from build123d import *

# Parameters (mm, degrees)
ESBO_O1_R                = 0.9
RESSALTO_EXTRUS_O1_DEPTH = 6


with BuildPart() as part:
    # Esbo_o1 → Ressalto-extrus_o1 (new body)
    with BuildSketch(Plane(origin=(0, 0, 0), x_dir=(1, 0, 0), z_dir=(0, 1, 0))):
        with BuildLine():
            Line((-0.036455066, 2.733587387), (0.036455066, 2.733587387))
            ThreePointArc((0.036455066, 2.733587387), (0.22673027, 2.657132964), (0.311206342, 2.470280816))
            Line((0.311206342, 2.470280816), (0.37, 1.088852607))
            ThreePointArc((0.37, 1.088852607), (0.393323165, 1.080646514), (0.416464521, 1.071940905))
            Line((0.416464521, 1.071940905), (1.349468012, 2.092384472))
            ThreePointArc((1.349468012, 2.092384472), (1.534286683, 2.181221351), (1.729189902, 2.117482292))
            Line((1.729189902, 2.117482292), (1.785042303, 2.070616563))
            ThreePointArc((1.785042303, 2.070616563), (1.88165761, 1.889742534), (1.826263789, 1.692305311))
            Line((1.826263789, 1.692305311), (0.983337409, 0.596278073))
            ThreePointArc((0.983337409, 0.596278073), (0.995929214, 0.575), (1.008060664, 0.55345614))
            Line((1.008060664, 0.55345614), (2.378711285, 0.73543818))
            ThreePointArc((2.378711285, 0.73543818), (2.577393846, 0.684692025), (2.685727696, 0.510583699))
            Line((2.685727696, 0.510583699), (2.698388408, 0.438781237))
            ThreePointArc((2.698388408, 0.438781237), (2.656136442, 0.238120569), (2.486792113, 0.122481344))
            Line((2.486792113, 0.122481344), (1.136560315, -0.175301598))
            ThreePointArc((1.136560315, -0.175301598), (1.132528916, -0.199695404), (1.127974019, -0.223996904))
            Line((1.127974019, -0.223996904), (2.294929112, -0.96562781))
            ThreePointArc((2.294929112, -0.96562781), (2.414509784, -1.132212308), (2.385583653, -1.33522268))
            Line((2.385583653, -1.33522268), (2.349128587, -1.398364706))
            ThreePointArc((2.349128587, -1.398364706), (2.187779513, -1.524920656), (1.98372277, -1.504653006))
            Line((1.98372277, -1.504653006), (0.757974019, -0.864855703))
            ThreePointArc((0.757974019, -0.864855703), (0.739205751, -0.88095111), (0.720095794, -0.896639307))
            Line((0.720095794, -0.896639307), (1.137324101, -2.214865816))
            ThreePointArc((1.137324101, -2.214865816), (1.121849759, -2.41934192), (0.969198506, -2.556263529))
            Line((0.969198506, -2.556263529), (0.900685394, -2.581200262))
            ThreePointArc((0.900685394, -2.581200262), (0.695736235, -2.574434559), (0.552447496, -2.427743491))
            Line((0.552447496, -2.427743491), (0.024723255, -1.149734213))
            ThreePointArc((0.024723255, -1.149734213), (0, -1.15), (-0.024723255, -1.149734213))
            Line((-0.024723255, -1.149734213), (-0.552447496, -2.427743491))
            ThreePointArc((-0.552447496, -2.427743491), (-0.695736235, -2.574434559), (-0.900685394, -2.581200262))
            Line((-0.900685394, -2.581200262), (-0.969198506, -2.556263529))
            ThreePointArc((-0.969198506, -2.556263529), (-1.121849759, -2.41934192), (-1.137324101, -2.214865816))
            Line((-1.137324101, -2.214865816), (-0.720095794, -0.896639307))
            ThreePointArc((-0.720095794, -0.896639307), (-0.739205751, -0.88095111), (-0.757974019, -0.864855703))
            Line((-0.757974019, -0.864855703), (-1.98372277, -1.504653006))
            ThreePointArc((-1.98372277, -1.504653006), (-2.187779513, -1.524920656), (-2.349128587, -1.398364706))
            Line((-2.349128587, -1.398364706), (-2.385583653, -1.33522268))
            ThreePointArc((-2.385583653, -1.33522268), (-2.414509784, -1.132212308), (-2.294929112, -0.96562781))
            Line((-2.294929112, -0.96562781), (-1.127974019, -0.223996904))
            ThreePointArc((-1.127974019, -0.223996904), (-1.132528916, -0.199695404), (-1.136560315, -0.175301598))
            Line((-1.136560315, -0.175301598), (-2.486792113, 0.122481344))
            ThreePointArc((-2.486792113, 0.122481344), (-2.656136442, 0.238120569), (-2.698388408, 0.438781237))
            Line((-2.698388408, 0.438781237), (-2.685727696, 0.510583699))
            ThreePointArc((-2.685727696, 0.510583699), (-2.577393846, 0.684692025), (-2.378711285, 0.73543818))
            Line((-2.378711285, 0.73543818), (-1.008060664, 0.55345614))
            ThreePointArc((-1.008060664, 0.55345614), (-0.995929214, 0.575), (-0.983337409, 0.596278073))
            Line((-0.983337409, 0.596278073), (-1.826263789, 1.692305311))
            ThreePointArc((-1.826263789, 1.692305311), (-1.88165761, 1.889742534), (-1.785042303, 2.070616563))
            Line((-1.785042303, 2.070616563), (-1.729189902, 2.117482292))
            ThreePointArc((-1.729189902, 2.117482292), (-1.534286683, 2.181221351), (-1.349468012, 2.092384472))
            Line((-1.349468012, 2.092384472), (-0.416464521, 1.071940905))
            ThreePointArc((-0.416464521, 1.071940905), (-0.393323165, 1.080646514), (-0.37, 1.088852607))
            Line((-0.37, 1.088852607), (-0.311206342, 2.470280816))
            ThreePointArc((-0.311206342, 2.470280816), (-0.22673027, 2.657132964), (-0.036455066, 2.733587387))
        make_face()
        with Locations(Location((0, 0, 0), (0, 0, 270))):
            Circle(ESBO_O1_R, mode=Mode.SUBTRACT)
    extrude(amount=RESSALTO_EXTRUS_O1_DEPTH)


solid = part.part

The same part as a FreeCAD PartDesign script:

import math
import FreeCAD as App
import Part
import Sketcher
Q = App.Units.Quantity

doc = App.newDocument("Part")
params = doc.addObject("Spreadsheet::Sheet", "Params")
for row, (alias, value) in enumerate([
    ("sketch1_diameter", "1.8 mm"),
    ("sketch1_radius", "1.15 mm"),
    ("pad1_length", "6 mm"),
], start=1):
    params.set(f"A{row}", alias)
    params.set(f"B{row}", "=" + value)
    params.setAlias(f"B{row}", alias)

body = doc.addObject("PartDesign::Body", "Body")

# Sketch on XZ plane
sketch1 = body.newObject("Sketcher::SketchObject", "Sketch")
sketch1.AttachmentSupport = (doc.getObject("XZ_Plane"), [""])
sketch1.MapMode = "FlatFace"
sketch1.addGeometry(Part.LineSegment(App.Vector(0.036, -2.734, 0), App.Vector(-0.036, -2.734, 0)), False)
sketch1.addGeometry(Part.ArcOfCircle(Part.Circle(App.Vector(-0.036, -2.459, 0), App.Vector(0, 0, 1), 0.275), math.radians(-178), math.radians(-90)), False)
sketch1.addGeometry(Part.LineSegment(App.Vector(-0.311, -2.47, 0), App.Vector(-0.37, -1.089, 0)), False)
sketch1.addGeometry(Part.ArcOfCircle(Part.Circle(App.Vector(0, 0, 0), App.Vector(0, 0, 1), 1.15), math.radians(-111.23), math.radians(-108.77)), False)
sketch1.addGeometry(Part.LineSegment(App.Vector(-0.416, -1.072, 0), App.Vector(-1.349, -2.092, 0)), False)
sketch1.addGeometry(Part.ArcOfCircle(Part.Circle(App.Vector(-1.552, -1.907, 0), App.Vector(0, 0, 1), 0.275), math.radians(-130), math.radians(-42)), False)
sketch1.addGeometry(Part.LineSegment(App.Vector(-1.729, -2.117, 0), App.Vector(-1.785, -2.071, 0)), False)
sketch1.addGeometry(Part.ArcOfCircle(Part.Circle(App.Vector(-1.608, -1.86, 0), App.Vector(0, 0, 1), 0.275), math.radians(142), math.radians(230)), False)
sketch1.addGeometry(Part.LineSegment(App.Vector(-1.826, -1.692, 0), App.Vector(-0.983, -0.596, 0)), False)
sketch1.addGeometry(Part.ArcOfCircle(Part.Circle(App.Vector(0, 0, 0), App.Vector(0, 0, 1), 1.15), math.radians(-151.23), math.radians(-148.77)), False)
sketch1.addGeometry(Part.LineSegment(App.Vector(-1.008, -0.553, 0), App.Vector(-2.379, -0.735, 0)), False)
sketch1.addGeometry(Part.ArcOfCircle(Part.Circle(App.Vector(-2.415, -0.463, 0), App.Vector(0, 0, 1), 0.275), math.radians(-170), math.radians(-82)), False)
sketch1.addGeometry(Part.LineSegment(App.Vector(-2.686, -0.511, 0), App.Vector(-2.698, -0.439, 0)), False)
sketch1.addGeometry(Part.ArcOfCircle(Part.Circle(App.Vector(-2.428, -0.391, 0), App.Vector(0, 0, 1), 0.275), math.radians(102), math.radians(190)), False)
sketch1.addGeometry(Part.LineSegment(App.Vector(-2.487, -0.122, 0), App.Vector(-1.137, 0.175, 0)), False)
sketch1.addGeometry(Part.ArcOfCircle(Part.Circle(App.Vector(0, 0, 0), App.Vector(0, 0, 1), 1.15), math.radians(168.77), math.radians(171.23)), False)
sketch1.addGeometry(Part.LineSegment(App.Vector(-1.128, 0.224, 0), App.Vector(-2.295, 0.966, 0)), False)
sketch1.addGeometry(Part.ArcOfCircle(Part.Circle(App.Vector(-2.147, 1.198, 0), App.Vector(0, 0, 1), 0.275), math.radians(150), math.radians(238)), False)
sketch1.addGeometry(Part.LineSegment(App.Vector(-2.386, 1.335, 0), App.Vector(-2.349, 1.398, 0)), False)
sketch1.addGeometry(Part.ArcOfCircle(Part.Circle(App.Vector(-2.111, 1.261, 0), App.Vector(0, 0, 1), 0.275), math.radians(62), math.radians(150)), False)
sketch1.addGeometry(Part.LineSegment(App.Vector(-1.984, 1.505, 0), App.Vector(-0.758, 0.865, 0)), False)
sketch1.addGeometry(Part.ArcOfCircle(Part.Circle(App.Vector(0, 0, 0), App.Vector(0, 0, 1), 1.15), math.radians(128.77), math.radians(131.23)), False)
sketch1.addGeometry(Part.LineSegment(App.Vector(-0.72, 0.897, 0), App.Vector(-1.137, 2.215, 0)), False)
sketch1.addGeometry(Part.ArcOfCircle(Part.Circle(App.Vector(-0.875, 2.298, 0), App.Vector(0, 0, 1), 0.275), math.radians(110), math.radians(198)), False)
sketch1.addGeometry(Part.LineSegment(App.Vector(-0.969, 2.556, 0), App.Vector(-0.901, 2.581, 0)), False)
sketch1.addGeometry(Part.ArcOfCircle(Part.Circle(App.Vector(-0.807, 2.323, 0), App.Vector(0, 0, 1), 0.275), math.radians(22), math.radians(110)), False)
sketch1.addGeometry(Part.LineSegment(App.Vector(-0.552, 2.428, 0), App.Vector(-0.025, 1.15, 0)), False)
sketch1.addGeometry(Part.ArcOfCircle(Part.Circle(App.Vector(0, 0, 0), App.Vector(0, 0, 1), 1.15), math.radians(88.77), math.radians(91.23)), False)
sketch1.addGeometry(Part.LineSegment(App.Vector(0.025, 1.15, 0), App.Vector(0.552, 2.428, 0)), False)
sketch1.addGeometry(Part.ArcOfCircle(Part.Circle(App.Vector(0.807, 2.323, 0), App.Vector(0, 0, 1), 0.275), math.radians(70), math.radians(158)), False)
sketch1.addGeometry(Part.LineSegment(App.Vector(0.901, 2.581, 0), App.Vector(0.969, 2.556, 0)), False)
sketch1.addGeometry(Part.ArcOfCircle(Part.Circle(App.Vector(0.875, 2.298, 0), App.Vector(0, 0, 1), 0.275), math.radians(-18), math.radians(70)), False)
sketch1.addGeometry(Part.LineSegment(App.Vector(1.137, 2.215, 0), App.Vector(0.72, 0.897, 0)), False)
sketch1.addGeometry(Part.ArcOfCircle(Part.Circle(App.Vector(0, 0, 0), App.Vector(0, 0, 1), 1.15), math.radians(48.77), math.radians(51.23)), False)
sketch1.addGeometry(Part.LineSegment(App.Vector(0.758, 0.865, 0), App.Vector(1.984, 1.505, 0)), False)
sketch1.addGeometry(Part.ArcOfCircle(Part.Circle(App.Vector(2.111, 1.261, 0), App.Vector(0, 0, 1), 0.275), math.radians(30), math.radians(118)), False)
sketch1.addGeometry(Part.LineSegment(App.Vector(2.349, 1.398, 0), App.Vector(2.386, 1.335, 0)), False)
sketch1.addGeometry(Part.ArcOfCircle(Part.Circle(App.Vector(2.147, 1.198, 0), App.Vector(0, 0, 1), 0.275), math.radians(-58), math.radians(30)), False)
sketch1.addGeometry(Part.LineSegment(App.Vector(2.295, 0.966, 0), App.Vector(1.128, 0.224, 0)), False)
sketch1.addGeometry(Part.ArcOfCircle(Part.Circle(App.Vector(0, 0, 0), App.Vector(0, 0, 1), 1.15), math.radians(8.77), math.radians(11.23)), False)
sketch1.addGeometry(Part.LineSegment(App.Vector(1.137, 0.175, 0), App.Vector(2.487, -0.122, 0)), False)
sketch1.addGeometry(Part.ArcOfCircle(Part.Circle(App.Vector(2.428, -0.391, 0), App.Vector(0, 0, 1), 0.275), math.radians(-10), math.radians(78)), False)
sketch1.addGeometry(Part.LineSegment(App.Vector(2.698, -0.439, 0), App.Vector(2.686, -0.511, 0)), False)
sketch1.addGeometry(Part.ArcOfCircle(Part.Circle(App.Vector(2.415, -0.463, 0), App.Vector(0, 0, 1), 0.275), math.radians(-98), math.radians(-10)), False)
sketch1.addGeometry(Part.LineSegment(App.Vector(2.379, -0.735, 0), App.Vector(1.008, -0.553, 0)), False)
sketch1.addGeometry(Part.ArcOfCircle(Part.Circle(App.Vector(0, 0, 0), App.Vector(0, 0, 1), 1.15), math.radians(-31.23), math.radians(-28.77)), False)
sketch1.addGeometry(Part.LineSegment(App.Vector(0.983, -0.596, 0), App.Vector(1.826, -1.692, 0)), False)
sketch1.addGeometry(Part.ArcOfCircle(Part.Circle(App.Vector(1.608, -1.86, 0), App.Vector(0, 0, 1), 0.275), math.radians(-50), math.radians(38)), False)
sketch1.addGeometry(Part.LineSegment(App.Vector(1.785, -2.071, 0), App.Vector(1.729, -2.117, 0)), False)
sketch1.addGeometry(Part.ArcOfCircle(Part.Circle(App.Vector(1.552, -1.907, 0), App.Vector(0, 0, 1), 0.275), math.radians(-138), math.radians(-50)), False)
sketch1.addGeometry(Part.LineSegment(App.Vector(1.349, -2.092, 0), App.Vector(0.416, -1.072, 0)), False)
sketch1.addGeometry(Part.ArcOfCircle(Part.Circle(App.Vector(0, 0, 0), App.Vector(0, 0, 1), 1.15), math.radians(-71.23), math.radians(-68.77)), False)
sketch1.addGeometry(Part.LineSegment(App.Vector(0.37, -1.089, 0), App.Vector(0.311, -2.47, 0)), False)
sketch1.addGeometry(Part.ArcOfCircle(Part.Circle(App.Vector(0.036, -2.459, 0), App.Vector(0, 0, 1), 0.275), math.radians(-90), math.radians(-2)), False)
sketch1.addGeometry(Part.Circle(App.Vector(0, 0, 0), App.Vector(0, 0, 1), 0.9), False)
sketch1.addConstraint(Sketcher.Constraint("Tangent", 0, 2, 1, 2))
sketch1.addConstraint(Sketcher.Constraint("Tangent", 1, 1, 2, 1))
sketch1.addConstraint(Sketcher.Constraint("Coincident", 2, 2, 3, 2))
sketch1.addConstraint(Sketcher.Constraint("Coincident", 3, 1, 4, 1))
sketch1.addConstraint(Sketcher.Constraint("Tangent", 4, 2, 5, 2))
sketch1.addConstraint(Sketcher.Constraint("Tangent", 5, 1, 6, 1))
sketch1.addConstraint(Sketcher.Constraint("Tangent", 6, 2, 7, 2))
sketch1.addConstraint(Sketcher.Constraint("Tangent", 7, 1, 8, 1))
sketch1.addConstraint(Sketcher.Constraint("Coincident", 8, 2, 9, 2))
sketch1.addConstraint(Sketcher.Constraint("Coincident", 9, 1, 10, 1))
sketch1.addConstraint(Sketcher.Constraint("Tangent", 10, 2, 11, 2))
sketch1.addConstraint(Sketcher.Constraint("Tangent", 11, 1, 12, 1))
sketch1.addConstraint(Sketcher.Constraint("Tangent", 12, 2, 13, 2))
sketch1.addConstraint(Sketcher.Constraint("Tangent", 13, 1, 14, 1))
sketch1.addConstraint(Sketcher.Constraint("Coincident", 14, 2, 15, 2))
sketch1.addConstraint(Sketcher.Constraint("Coincident", 15, 1, 16, 1))
sketch1.addConstraint(Sketcher.Constraint("Tangent", 16, 2, 17, 2))
sketch1.addConstraint(Sketcher.Constraint("Tangent", 17, 1, 18, 1))
sketch1.addConstraint(Sketcher.Constraint("Tangent", 18, 2, 19, 2))
sketch1.addConstraint(Sketcher.Constraint("Tangent", 19, 1, 20, 1))
sketch1.addConstraint(Sketcher.Constraint("Coincident", 20, 2, 21, 2))
sketch1.addConstraint(Sketcher.Constraint("Coincident", 21, 1, 22, 1))
sketch1.addConstraint(Sketcher.Constraint("Tangent", 22, 2, 23, 2))
sketch1.addConstraint(Sketcher.Constraint("Tangent", 23, 1, 24, 1))
sketch1.addConstraint(Sketcher.Constraint("Tangent", 24, 2, 25, 2))
sketch1.addConstraint(Sketcher.Constraint("Tangent", 25, 1, 26, 1))
sketch1.addConstraint(Sketcher.Constraint("Coincident", 26, 2, 27, 2))
sketch1.addConstraint(Sketcher.Constraint("Coincident", 27, 1, 28, 1))
sketch1.addConstraint(Sketcher.Constraint("Tangent", 28, 2, 29, 2))
sketch1.addConstraint(Sketcher.Constraint("Tangent", 29, 1, 30, 1))
sketch1.addConstraint(Sketcher.Constraint("Tangent", 30, 2, 31, 2))
sketch1.addConstraint(Sketcher.Constraint("Tangent", 31, 1, 32, 1))
sketch1.addConstraint(Sketcher.Constraint("Coincident", 32, 2, 33, 2))
sketch1.addConstraint(Sketcher.Constraint("Coincident", 33, 1, 34, 1))
sketch1.addConstraint(Sketcher.Constraint("Tangent", 34, 2, 35, 2))
sketch1.addConstraint(Sketcher.Constraint("Tangent", 35, 1, 36, 1))
sketch1.addConstraint(Sketcher.Constraint("Tangent", 36, 2, 37, 2))
sketch1.addConstraint(Sketcher.Constraint("Tangent", 37, 1, 38, 1))
sketch1.addConstraint(Sketcher.Constraint("Coincident", 38, 2, 39, 2))
sketch1.addConstraint(Sketcher.Constraint("Coincident", 39, 1, 40, 1))
sketch1.addConstraint(Sketcher.Constraint("Tangent", 40, 2, 41, 2))
sketch1.addConstraint(Sketcher.Constraint("Tangent", 41, 1, 42, 1))
sketch1.addConstraint(Sketcher.Constraint("Tangent", 42, 2, 43, 2))
sketch1.addConstraint(Sketcher.Constraint("Tangent", 43, 1, 44, 1))
sketch1.addConstraint(Sketcher.Constraint("Coincident", 44, 2, 45, 2))
sketch1.addConstraint(Sketcher.Constraint("Coincident", 45, 1, 46, 1))
sketch1.addConstraint(Sketcher.Constraint("Tangent", 46, 2, 47, 2))
sketch1.addConstraint(Sketcher.Constraint("Tangent", 47, 1, 48, 1))
sketch1.addConstraint(Sketcher.Constraint("Tangent", 48, 2, 49, 2))
sketch1.addConstraint(Sketcher.Constraint("Tangent", 49, 1, 50, 1))
sketch1.addConstraint(Sketcher.Constraint("Coincident", 50, 2, 51, 2))
sketch1.addConstraint(Sketcher.Constraint("Coincident", 51, 1, 52, 1))
sketch1.addConstraint(Sketcher.Constraint("Tangent", 52, 2, 53, 2))
sketch1.addConstraint(Sketcher.Constraint("Tangent", 53, 1, 0, 1))
sketch1.addConstraint(Sketcher.Constraint("Horizontal", 0))
sketch1.addConstraint(Sketcher.Constraint("Coincident", 3, 3, -1, 1))
sketch1.addConstraint(Sketcher.Constraint("Coincident", 9, 3, -1, 1))
sketch1.addConstraint(Sketcher.Constraint("Coincident", 15, 3, -1, 1))
sketch1.addConstraint(Sketcher.Constraint("Coincident", 21, 3, -1, 1))
sketch1.addConstraint(Sketcher.Constraint("Coincident", 27, 3, -1, 1))
sketch1.addConstraint(Sketcher.Constraint("Coincident", 33, 3, -1, 1))
sketch1.addConstraint(Sketcher.Constraint("Coincident", 39, 3, -1, 1))
sketch1.addConstraint(Sketcher.Constraint("Coincident", 45, 3, -1, 1))
sketch1.addConstraint(Sketcher.Constraint("Coincident", 51, 3, -1, 1))
sketch1.addConstraint(Sketcher.Constraint("Coincident", 54, 3, -1, 1))
sketch1.addConstraint(Sketcher.Constraint("Equal", 1, 5))
sketch1.addConstraint(Sketcher.Constraint("Equal", 5, 7))
sketch1.addConstraint(Sketcher.Constraint("Equal", 7, 11))
sketch1.addConstraint(Sketcher.Constraint("Equal", 11, 13))
sketch1.addConstraint(Sketcher.Constraint("Equal", 3, 15))
sketch1.addConstraint(Sketcher.Constraint("Equal", 13, 17))
sketch1.addConstraint(Sketcher.Constraint("Equal", 17, 19))
sketch1.addConstraint(Sketcher.Constraint("Equal", 15, 21))
sketch1.addConstraint(Sketcher.Constraint("Equal", 19, 23))
sketch1.addConstraint(Sketcher.Constraint("Equal", 23, 25))
sketch1.addConstraint(Sketcher.Constraint("Equal", 21, 27))
sketch1.addConstraint(Sketcher.Constraint("Equal", 25, 29))
sketch1.addConstraint(Sketcher.Constraint("Equal", 29, 31))
sketch1.addConstraint(Sketcher.Constraint("Equal", 27, 33))
sketch1.addConstraint(Sketcher.Constraint("Equal", 31, 35))
sketch1.addConstraint(Sketcher.Constraint("Equal", 35, 37))
sketch1.addConstraint(Sketcher.Constraint("Equal", 33, 39))
sketch1.addConstraint(Sketcher.Constraint("Equal", 37, 41))
sketch1.addConstraint(Sketcher.Constraint("Equal", 41, 43))
sketch1.addConstraint(Sketcher.Constraint("Equal", 9, 45))
sketch1.addConstraint(Sketcher.Constraint("Equal", 43, 47))
sketch1.addConstraint(Sketcher.Constraint("Equal", 47, 49))
sketch1.addConstraint(Sketcher.Constraint("Equal", 39, 51))
sketch1.addConstraint(Sketcher.Constraint("Equal", 49, 53))
sketch1.addConstraint(Sketcher.Constraint("Symmetric", 25, 3, 29, 3, -2))
sketch1.addConstraint(Sketcher.Constraint("Symmetric", 23, 3, 31, 3, -2))
sketch1.addConstraint(Sketcher.Constraint("Symmetric", 19, 3, 35, 3, -2))
sketch1.addConstraint(Sketcher.Constraint("Symmetric", 17, 3, 37, 3, -2))
sketch1.addConstraint(Sketcher.Constraint("Symmetric", 13, 3, 41, 3, -2))
sketch1.addConstraint(Sketcher.Constraint("Symmetric", 11, 3, 43, 3, -2))
sketch1.addConstraint(Sketcher.Constraint("Symmetric", 7, 3, 47, 3, -2))
sketch1.addConstraint(Sketcher.Constraint("Symmetric", 5, 3, 49, 3, -2))
sketch1.addConstraint(Sketcher.Constraint("Symmetric", 1, 1, 52, 2, -2))
sketch1.addConstraint(Sketcher.Constraint("Horizontal", 26, 2, 27, 1))
sketch1.addConstraint(Sketcher.Constraint("Horizontal", 22, 2, 31, 1))
sketch1.addConstraint(Sketcher.Constraint("Horizontal", 20, 2, 33, 1))
sketch1.addConstraint(Sketcher.Constraint("Horizontal", 16, 2, 37, 1))
sketch1.addConstraint(Sketcher.Constraint("Horizontal", 14, 2, 39, 1))
sketch1.addConstraint(Sketcher.Constraint("Horizontal", 10, 2, 43, 1))
sketch1.addConstraint(Sketcher.Constraint("Horizontal", 8, 2, 45, 1))
sketch1.addConstraint(Sketcher.Constraint("Horizontal", 4, 2, 49, 1))
sketch1.addConstraint(Sketcher.Constraint("Equal", 2, 4))
sketch1.addConstraint(Sketcher.Constraint("Equal", 4, 8))
sketch1.addConstraint(Sketcher.Constraint("Equal", 8, 10))
sketch1.addConstraint(Sketcher.Constraint("Equal", 6, 12))
sketch1.addConstraint(Sketcher.Constraint("Equal", 10, 14))
sketch1.addConstraint(Sketcher.Constraint("Equal", 14, 16))
sketch1.addConstraint(Sketcher.Constraint("Equal", 12, 18))
sketch1.addConstraint(Sketcher.Constraint("Equal", 16, 20))
sketch1.addConstraint(Sketcher.Constraint("Equal", 20, 22))
sketch1.addConstraint(Sketcher.Constraint("Equal", 18, 24))
sketch1.addConstraint(Sketcher.Constraint("Equal", 22, 26))
sketch1.addConstraint(Sketcher.Constraint("Diameter", 54, 1.8))
sketch1.addConstraint(Sketcher.Constraint("Angle", 6, Q("140 deg")))
sketch1.addConstraint(Sketcher.Constraint("Angle", 12, Q("100.000001 deg")))
sketch1.addConstraint(Sketcher.Constraint("Angle", 18, Q("60 deg")))
sketch1.addConstraint(Sketcher.Constraint("Angle", 24, Q("20 deg")))
sketch1.addConstraint(Sketcher.Constraint("Radius", 3, 1.15))
sketch1.addConstraint(Sketcher.Constraint("Radius", 1, 0.275))
sketch1.addConstraint(Sketcher.Constraint("DistanceX", 2, 2, -1, 1, 0.37))
sketch1.addConstraint(Sketcher.Constraint("Radius", 9, 1.150003))
sketch1.addConstraint(Sketcher.Constraint("DistanceX", 0, 2, 0, 1, 0.07291))
sketch1.addConstraint(Sketcher.Constraint("DistanceY", -1, 1, 14, 2, 0.175302))
sketch1.addConstraint(Sketcher.Constraint("DistanceX", 23, 1, -1, 1, 0.969199))
sketch1.addConstraint(Sketcher.Constraint("DistanceY", -1, 1, 24, 2, 2.5812))
sketch1.addConstraint(Sketcher.Constraint("Distance", 2, 1.382679))
sketch1.addConstraint(Sketcher.Constraint("Distance", 6, 0.07291))
sketch1.addConstraint(Sketcher.Constraint("DistanceY", 5, 3, -1, 1, 1.90682))
sketch1.addConstraint(Sketcher.Constraint("DistanceY", 11, 3, -1, 1, 0.46283))
sketch1.addConstraint(Sketcher.Constraint("DistanceX", 19, 3, -1, 1, 2.110972))
sketch1.addConstraint(Sketcher.Constraint("DistanceY", 3, 1, -1, 1, 1.071941))
sketch1.addConstraint(Sketcher.Constraint("DistanceX", 16, 2, -1, 1, 2.294929))
sketch1.setExpression("Constraints[117]", "Params.sketch1_diameter")
sketch1.setExpression("Constraints[122]", "Params.sketch1_radius")
pad1 = body.newObject("PartDesign::Pad", "Pad")
pad1.Profile = sketch1
pad1.setExpression("Length", "Params.pad1_length")
pad1.Reversed = True

doc.recompute()
